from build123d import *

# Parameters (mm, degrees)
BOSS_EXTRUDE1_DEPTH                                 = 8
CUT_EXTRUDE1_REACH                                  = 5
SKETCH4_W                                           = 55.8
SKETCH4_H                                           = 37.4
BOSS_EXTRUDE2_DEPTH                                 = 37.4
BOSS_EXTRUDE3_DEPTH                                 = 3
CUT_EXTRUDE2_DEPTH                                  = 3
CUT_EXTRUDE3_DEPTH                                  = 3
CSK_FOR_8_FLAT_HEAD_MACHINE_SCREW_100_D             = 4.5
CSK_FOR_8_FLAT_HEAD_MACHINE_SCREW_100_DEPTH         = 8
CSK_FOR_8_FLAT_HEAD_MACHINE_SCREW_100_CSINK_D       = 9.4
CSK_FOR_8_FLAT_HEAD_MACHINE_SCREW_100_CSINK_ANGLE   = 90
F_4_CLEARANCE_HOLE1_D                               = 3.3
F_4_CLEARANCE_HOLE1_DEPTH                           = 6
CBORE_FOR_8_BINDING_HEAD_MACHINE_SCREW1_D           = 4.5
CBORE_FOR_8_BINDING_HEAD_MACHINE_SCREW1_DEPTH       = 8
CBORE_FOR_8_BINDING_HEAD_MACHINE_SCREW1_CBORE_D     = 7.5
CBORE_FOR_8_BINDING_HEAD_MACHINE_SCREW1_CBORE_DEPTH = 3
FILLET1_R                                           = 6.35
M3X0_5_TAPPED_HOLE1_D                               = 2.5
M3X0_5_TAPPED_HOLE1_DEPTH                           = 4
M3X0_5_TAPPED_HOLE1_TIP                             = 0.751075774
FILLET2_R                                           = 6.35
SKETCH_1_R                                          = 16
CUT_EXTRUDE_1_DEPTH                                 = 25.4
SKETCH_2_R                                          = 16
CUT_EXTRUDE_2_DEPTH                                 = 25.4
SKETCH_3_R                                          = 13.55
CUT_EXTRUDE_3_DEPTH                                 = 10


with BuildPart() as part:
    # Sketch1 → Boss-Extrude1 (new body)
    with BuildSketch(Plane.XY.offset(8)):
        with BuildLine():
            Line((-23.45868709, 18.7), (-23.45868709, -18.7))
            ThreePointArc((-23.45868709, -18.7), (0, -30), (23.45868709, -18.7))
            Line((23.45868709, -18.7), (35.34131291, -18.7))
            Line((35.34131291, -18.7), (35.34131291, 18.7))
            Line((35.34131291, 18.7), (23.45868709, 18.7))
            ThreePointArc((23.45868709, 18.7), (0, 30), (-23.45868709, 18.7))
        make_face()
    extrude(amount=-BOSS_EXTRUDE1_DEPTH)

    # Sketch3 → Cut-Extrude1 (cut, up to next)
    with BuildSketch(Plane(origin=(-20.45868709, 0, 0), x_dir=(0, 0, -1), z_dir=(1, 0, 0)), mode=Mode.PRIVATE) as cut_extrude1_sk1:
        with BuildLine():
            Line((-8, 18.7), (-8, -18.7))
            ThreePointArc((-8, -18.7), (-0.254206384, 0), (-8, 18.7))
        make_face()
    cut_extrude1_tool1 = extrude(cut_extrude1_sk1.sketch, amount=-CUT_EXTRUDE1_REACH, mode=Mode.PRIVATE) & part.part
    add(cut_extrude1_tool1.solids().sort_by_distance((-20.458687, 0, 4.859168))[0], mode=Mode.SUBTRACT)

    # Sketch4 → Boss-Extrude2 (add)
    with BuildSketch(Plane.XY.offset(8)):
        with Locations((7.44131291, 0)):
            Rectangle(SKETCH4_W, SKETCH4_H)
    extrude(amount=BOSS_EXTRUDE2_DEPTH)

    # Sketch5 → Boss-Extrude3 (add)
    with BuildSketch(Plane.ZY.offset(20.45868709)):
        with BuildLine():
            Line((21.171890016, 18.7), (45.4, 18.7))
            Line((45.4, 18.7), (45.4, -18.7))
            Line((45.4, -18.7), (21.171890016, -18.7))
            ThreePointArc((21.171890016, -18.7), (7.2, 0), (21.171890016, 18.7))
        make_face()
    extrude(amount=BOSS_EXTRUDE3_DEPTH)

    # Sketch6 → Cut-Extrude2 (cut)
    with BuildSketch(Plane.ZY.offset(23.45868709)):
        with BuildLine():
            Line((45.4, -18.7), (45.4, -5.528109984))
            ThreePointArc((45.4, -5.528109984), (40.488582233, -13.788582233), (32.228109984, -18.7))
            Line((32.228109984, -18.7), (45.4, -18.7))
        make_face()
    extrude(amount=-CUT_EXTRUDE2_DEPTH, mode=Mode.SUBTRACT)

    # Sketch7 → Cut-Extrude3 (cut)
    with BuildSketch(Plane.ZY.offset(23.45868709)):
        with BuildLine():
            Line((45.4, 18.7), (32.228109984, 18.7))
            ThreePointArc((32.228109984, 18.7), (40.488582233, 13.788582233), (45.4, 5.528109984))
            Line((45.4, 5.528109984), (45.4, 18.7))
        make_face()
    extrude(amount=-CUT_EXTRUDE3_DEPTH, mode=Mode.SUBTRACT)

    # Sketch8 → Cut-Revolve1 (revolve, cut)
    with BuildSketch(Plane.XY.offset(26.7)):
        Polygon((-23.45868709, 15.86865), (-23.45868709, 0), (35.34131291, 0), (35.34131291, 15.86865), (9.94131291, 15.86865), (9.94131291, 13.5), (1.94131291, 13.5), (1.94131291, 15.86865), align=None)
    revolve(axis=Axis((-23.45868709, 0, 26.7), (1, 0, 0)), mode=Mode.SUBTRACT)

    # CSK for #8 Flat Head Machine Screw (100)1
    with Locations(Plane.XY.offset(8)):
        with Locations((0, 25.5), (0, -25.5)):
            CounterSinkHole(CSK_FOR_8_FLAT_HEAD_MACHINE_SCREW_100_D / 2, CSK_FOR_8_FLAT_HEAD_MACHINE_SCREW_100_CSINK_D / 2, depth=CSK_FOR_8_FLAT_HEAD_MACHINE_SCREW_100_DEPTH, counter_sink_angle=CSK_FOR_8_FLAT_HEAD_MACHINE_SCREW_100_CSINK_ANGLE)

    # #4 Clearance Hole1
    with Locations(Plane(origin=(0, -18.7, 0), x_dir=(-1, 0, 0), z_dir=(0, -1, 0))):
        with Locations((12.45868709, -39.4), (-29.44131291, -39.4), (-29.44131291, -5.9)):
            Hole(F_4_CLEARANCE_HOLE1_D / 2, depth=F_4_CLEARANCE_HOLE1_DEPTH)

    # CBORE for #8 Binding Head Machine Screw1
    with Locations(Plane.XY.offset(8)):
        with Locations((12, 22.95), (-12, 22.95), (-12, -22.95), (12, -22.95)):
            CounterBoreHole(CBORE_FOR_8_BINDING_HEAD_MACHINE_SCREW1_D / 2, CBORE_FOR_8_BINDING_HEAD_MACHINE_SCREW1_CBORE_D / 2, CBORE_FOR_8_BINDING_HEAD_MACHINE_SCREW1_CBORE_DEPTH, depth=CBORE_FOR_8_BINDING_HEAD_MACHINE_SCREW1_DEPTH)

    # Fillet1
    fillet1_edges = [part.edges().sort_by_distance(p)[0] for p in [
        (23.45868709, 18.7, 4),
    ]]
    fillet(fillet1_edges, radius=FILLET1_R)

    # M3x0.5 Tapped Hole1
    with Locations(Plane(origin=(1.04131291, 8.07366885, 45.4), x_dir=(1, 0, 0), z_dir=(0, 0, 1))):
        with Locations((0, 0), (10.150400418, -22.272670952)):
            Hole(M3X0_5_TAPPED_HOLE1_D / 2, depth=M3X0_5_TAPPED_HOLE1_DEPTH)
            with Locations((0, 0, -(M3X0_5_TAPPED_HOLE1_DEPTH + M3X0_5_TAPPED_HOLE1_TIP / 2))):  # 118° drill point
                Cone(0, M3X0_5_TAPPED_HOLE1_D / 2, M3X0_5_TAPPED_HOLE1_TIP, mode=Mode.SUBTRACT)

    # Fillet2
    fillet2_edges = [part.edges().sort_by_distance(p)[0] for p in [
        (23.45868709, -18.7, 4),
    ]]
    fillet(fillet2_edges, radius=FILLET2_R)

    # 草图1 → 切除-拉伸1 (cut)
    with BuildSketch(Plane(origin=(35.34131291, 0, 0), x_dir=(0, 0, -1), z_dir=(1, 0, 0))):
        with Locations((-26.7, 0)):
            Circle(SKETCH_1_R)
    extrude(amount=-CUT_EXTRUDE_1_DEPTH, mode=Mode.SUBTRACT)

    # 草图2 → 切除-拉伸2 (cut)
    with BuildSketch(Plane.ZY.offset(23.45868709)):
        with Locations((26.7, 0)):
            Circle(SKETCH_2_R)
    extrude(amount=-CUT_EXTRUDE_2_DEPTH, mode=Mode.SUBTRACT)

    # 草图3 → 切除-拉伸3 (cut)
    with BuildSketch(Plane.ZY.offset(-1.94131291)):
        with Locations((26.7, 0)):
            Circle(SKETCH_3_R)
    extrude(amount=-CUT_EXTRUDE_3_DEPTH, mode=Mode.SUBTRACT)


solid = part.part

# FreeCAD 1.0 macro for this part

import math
import FreeCAD as App
import Part
import Sketcher
Q = App.Units.Quantity


def edges_at(feature, points):
    """Names of the edges that pass closest to the given points."""
    edges = feature.Shape.Edges
    near = lambda p: min(range(len(edges)), key=lambda i: edges[i].distToShape(Part.Vertex(*p))[0])
    return sorted({f"Edge{near(p) + 1}" for p in points})

doc = App.newDocument("Part")
body = doc.addObject("PartDesign::Body", "Body")

# Sketch on XY plane
sketch1 = body.newObject("Sketcher::SketchObject", "Sketch")
sketch1.AttachmentSupport = (doc.getObject("XY_Plane"), [""])
sketch1.MapMode = "FlatFace"
sketch1.AttachmentOffset = App.Placement(App.Vector(0, 0, 8), App.Rotation())
sketch1.addGeometry([
    Part.LineSegment(App.Vector(-23, 19, 0), App.Vector(-23, -19, 0)),  # 0
    Part.ArcOfCircle(Part.Circle(App.Vector(0, 0, 0), App.Vector(0, 0, 1), 30), math.radians(-141), math.radians(-39)),  # 1
    Part.LineSegment(App.Vector(23, -19, 0), App.Vector(35, -19, 0)),  # 2
    Part.LineSegment(App.Vector(35, -19, 0), App.Vector(35, 19, 0)),  # 3
    Part.LineSegment(App.Vector(35, 19, 0), App.Vector(23, 19, 0)),  # 4
    Part.ArcOfCircle(Part.Circle(App.Vector(0, 0, 0), App.Vector(0, 0, 1), 30), math.radians(39), math.radians(141)),  # 5
], False)
sketch1.addConstraint([
    Sketcher.Constraint("Coincident", 0, 2, 1, 1),
    Sketcher.Constraint("Coincident", 1, 2, 2, 1),
    Sketcher.Constraint("Coincident", 2, 2, 3, 1),
    Sketcher.Constraint("Coincident", 3, 2, 4, 1),
    Sketcher.Constraint("Coincident", 4, 2, 5, 1),
    Sketcher.Constraint("Coincident", 5, 2, 0, 1),
    Sketcher.Constraint("Vertical", 0),
    Sketcher.Constraint("Horizontal", 2),
    Sketcher.Constraint("Vertical", 3),
    Sketcher.Constraint("Horizontal", 4),
    Sketcher.Constraint("Coincident", 1, 3, -1, 1),
    Sketcher.Constraint("Coincident", 5, 3, -1, 1),
    Sketcher.Constraint("Equal", 1, 5),
    Sketcher.Constraint("Horizontal", 0, 2, 1, 2),
    Sketcher.Constraint("Horizontal", 4, 2, 5, 2),
    Sketcher.Constraint("Radius", 1, Q("30 mm")),
    Sketcher.Constraint("DistanceY", 0, 2, 0, 1, Q("37.4 mm")),
    Sketcher.Constraint("DistanceX", 0, 2, 2, 2, Q("58.8 mm")),
])
pad1 = body.newObject("PartDesign::Pad", "Pad")
pad1.Profile = sketch1
pad1.Length = 8
pad1.Reversed = True

# Sketch on YZ plane
sketch2 = body.newObject("Sketcher::SketchObject", "Sketch001")
sketch2.AttachmentSupport = (doc.getObject("YZ_Plane"), [""])
sketch2.MapMode = "FlatFace"
sketch2.AttachmentOffset = App.Placement(App.Vector(0, 0, -20.458687), App.Rotation())
sketch2.addGeometry([
    Part.LineSegment(App.Vector(19, 8, 0), App.Vector(-19, 8, 0)),
    Part.ArcOfCircle(Part.Circle(App.Vector(0, 27, 0), App.Vector(0, 0, 1), 26), math.radians(-135), math.radians(-45)),
], False)
sketch2.addConstraint([
    Sketcher.Constraint("Coincident", 0, 1, 1, 2),
    Sketcher.Constraint("Coincident", 1, 1, 0, 2),
    Sketcher.Constraint("Horizontal", 0),
    Sketcher.Constraint("PointOnObject", 1, 3, -2),
    Sketcher.Constraint("DistanceX", 0, 2, 0, 1, Q("37.4 mm")),
    Sketcher.Constraint("DistanceY", -1, 1, 0, 1, Q("8 mm")),
    Sketcher.Constraint("DistanceY", -1, 1, 1, 3, Q("26.7 mm")),
])
pocket1 = body.newObject("PartDesign::Pocket", "Pocket")
pocket1.Profile = sketch2
pocket1.Type = "UpToFirst"

# Sketch on XY plane
sketch3 = body.newObject("Sketcher::SketchObject", "Sketch002")
sketch3.AttachmentSupport = (doc.getObject("XY_Plane"), [""])
sketch3.MapMode = "FlatFace"
sketch3.AttachmentOffset = App.Placement(App.Vector(0, 0, 8), App.Rotation())
sketch3.addGeometry([
    Part.LineSegment(App.Vector(-20, 19, 0), App.Vector(-20, -19, 0)),
    Part.LineSegment(App.Vector(-20, -19, 0), App.Vector(35, -19, 0)),
    Part.LineSegment(App.Vector(35, -19, 0), App.Vector(35, 19, 0)),
    Part.LineSegment(App.Vector(35, 19, 0), App.Vector(-20, 19, 0)),
], False)
sketch3.addConstraint([
    Sketcher.Constraint("Coincident", 0, 2, 1, 1),
    Sketcher.Constraint("Coincident", 1, 2, 2, 1),
    Sketcher.Constraint("Coincident", 2, 2, 3, 1),
    Sketcher.Constraint("Coincident", 3, 2, 0, 1),
    Sketcher.Constraint("Vertical", 0),
    Sketcher.Constraint("Horizontal", 1),
    Sketcher.Constraint("Vertical", 2),
    Sketcher.Constraint("Horizontal", 3),
    Sketcher.Constraint("DistanceX", 1, 1, 1, 2, Q("55.8 mm")),
    Sketcher.Constraint("DistanceY", 0, 2, 0, 1, Q("37.4 mm")),
    Sketcher.Constraint("DistanceY", 0, 2, -1, 1, Q("18.7 mm")),
    Sketcher.Constraint("DistanceX", 0, 2, -1, 1, Q("20.458687 mm")),
])
pad2 = body.newObject("PartDesign::Pad", "Pad001")
pad2.Profile = sketch3
pad2.Length = 37.4

# Sketch on YZ plane
sketch4 = body.newObject("Sketcher::SketchObject", "Sketch003")
sketch4.AttachmentSupport = (doc.getObject("YZ_Plane"), [""])
sketch4.MapMode = "FlatFace"
sketch4.AttachmentOffset = App.Placement(App.Vector(0, 0, -20.458687), App.Rotation())
sketch4.addGeometry([
    Part.LineSegment(App.Vector(19, 45, 0), App.Vector(19, 21, 0)),
    Part.ArcOfCircle(Part.Circle(App.Vector(0, 27, 0), App.Vector(0, 0, 1), 20), math.radians(-164), math.radians(-16)),
    Part.LineSegment(App.Vector(-19, 21, 0), App.Vector(-19, 45, 0)),
    Part.LineSegment(App.Vector(-19, 45, 0), App.Vector(19, 45, 0)),
], False)
sketch4.addConstraint([
    Sketcher.Constraint("Coincident", 0, 2, 1, 2),
    Sketcher.Constraint("Coincident", 1, 1, 2, 1),
    Sketcher.Constraint("Coincident", 2, 2, 3, 1),
    Sketcher.Constraint("Coincident", 3, 2, 0, 1),
    Sketcher.Constraint("Vertical", 0),
    Sketcher.Constraint("Vertical", 2),
    Sketcher.Constraint("Horizontal", 3),
    Sketcher.Constraint("Symmetric", 0, 2, 1, 1, -2),
    Sketcher.Constraint("Radius", 1, Q("19.5 mm")),
    Sketcher.Constraint("DistanceX", 3, 1, 3, 2, Q("37.4 mm")),
    Sketcher.Constraint("DistanceY", -1, 1, 1, 3, Q("26.7 mm")),
    Sketcher.Constraint("DistanceY", -1, 1, 2, 2, Q("45.4 mm")),
])
pad3 = body.newObject("PartDesign::Pad", "Pad002")
pad3.Profile = sketch4
pad3.Length = 3
pad3.Reversed = True

# Sketch on YZ plane
sketch5 = body.newObject("Sketcher::SketchObject", "Sketch004")
sketch5.AttachmentSupport = (doc.getObject("YZ_Plane"), [""])
sketch5.MapMode = "FlatFace"
sketch5.AttachmentOffset = App.Placement(App.Vector(0, 0, -23.458687), App.Rotation())
sketch5.addGeometry([
    Part.LineSegment(App.Vector(-19, 45, 0), App.Vector(-6, 45, 0)),
    Part.ArcOfCircle(Part.Circle(App.Vector(0, 27, 0), App.Vector(0, 0, 1), 20), math.radians(106), math.radians(164)),
    Part.LineSegment(App.Vector(-19, 32, 0), App.Vector(-19, 45, 0)),
], False)
sketch5.addConstraint([
    Sketcher.Constraint("Coincident", 0, 2, 1, 1),
    Sketcher.Constraint("Coincident", 1, 2, 2, 1),
    Sketcher.Constraint("Coincident", 2, 2, 0, 1),
    Sketcher.Constraint("Horizontal", 0),
    Sketcher.Constraint("Vertical", 2),
    Sketcher.Constraint("PointOnObject", 1, 3, -2),
    Sketcher.Constraint("Equal", 0, 2),
    Sketcher.Constraint("Radius", 1, Q("19.5 mm")),
    Sketcher.Constraint("DistanceY", -1, 1, 1, 3, Q("26.7 mm")),
    Sketcher.Constraint("DistanceY", -1, 1, 0, 2, Q("45.4 mm")),
])
pocket2 = body.newObject("PartDesign::Pocket", "Pocket001")
pocket2.Profile = sketch5
pocket2.Length = 3
pocket2.Reversed = True

# Sketch on YZ plane
sketch6 = body.newObject("Sketcher::SketchObject", "Sketch005")
sketch6.AttachmentSupport = (doc.getObject("YZ_Plane"), [""])
sketch6.MapMode = "FlatFace"
sketch6.AttachmentOffset = App.Placement(App.Vector(0, 0, -23.458687), App.Rotation())
sketch6.addGeometry([
    Part.LineSegment(App.Vector(19, 45, 0), App.Vector(19, 32, 0)),
    Part.ArcOfCircle(Part.Circle(App.Vector(0, 27, 0), App.Vector(0, 0, 1), 20), math.radians(16), math.radians(74)),
    Part.LineSegment(App.Vector(6, 45, 0), App.Vector(19, 45, 0)),
], False)
sketch6.addConstraint([
    Sketcher.Constraint("Coincident", 0, 2, 1, 1),
    Sketcher.Constraint("Coincident", 1, 2, 2, 1),
    Sketcher.Constraint("Coincident", 2, 2, 0, 1),
    Sketcher.Constraint("Vertical", 0),
    Sketcher.Constraint("Horizontal", 2),
    Sketcher.Constraint("PointOnObject", 1, 3, -2),
    Sketcher.Constraint("Equal", 2, 0),
    Sketcher.Constraint("Radius", 1, Q("19.5 mm")),
    Sketcher.Constraint("DistanceY", -1, 1, 1, 3, Q("26.7 mm")),
    Sketcher.Constraint("DistanceX", -1, 1, 0, 2, Q("18.7 mm")),
])
pocket3 = body.newObject("PartDesign::Pocket", "Pocket002")
pocket3.Profile = sketch6
pocket3.Length = 3
pocket3.Reversed = True

# Sketch on XY plane
sketch7 = body.newObject("Sketcher::SketchObject", "Sketch006")
sketch7.AttachmentSupport = (doc.getObject("XY_Plane"), [""])
sketch7.MapMode = "FlatFace"
sketch7.AttachmentOffset = App.Placement(App.Vector(0, 0, 26.7), App.Rotation())
sketch7.addGeometry([
    Part.LineSegment(App.Vector(-23.5, 15.9, 0), App.Vector(-23.5, 0, 0)),  # 0
    Part.LineSegment(App.Vector(-23.5, 0, 0), App.Vector(35.3, 0, 0)),  # 1
    Part.LineSegment(App.Vector(35.3, 0, 0), App.Vector(35.3, 15.9, 0)),  # 2
    Part.LineSegment(App.Vector(35.3, 15.9, 0), App.Vector(9.9, 15.9, 0)),  # 3
    Part.LineSegment(App.Vector(9.9, 15.9, 0), App.Vector(9.9, 13.5, 0)),  # 4
    Part.LineSegment(App.Vector(9.9, 13.5, 0), App.Vector(1.9, 13.5, 0)),  # 5
    Part.LineSegment(App.Vector(1.9, 13.5, 0), App.Vector(1.9, 15.9, 0)),  # 6
    Part.LineSegment(App.Vector(1.9, 15.9, 0), App.Vector(-23.5, 15.9, 0)),  # 7
], False)
sketch7.addConstraint([
    Sketcher.Constraint("Coincident", 0, 2, 1, 1),
    Sketcher.Constraint("Coincident", 1, 2, 2, 1),
    Sketcher.Constraint("Coincident", 2, 2, 3, 1),
    Sketcher.Constraint("Coincident", 3, 2, 4, 1),
    Sketcher.Constraint("Coincident", 4, 2, 5, 1),
    Sketcher.Constraint("Coincident", 5, 2, 6, 1),
    Sketcher.Constraint("Coincident", 6, 2, 7, 1),
    Sketcher.Constraint("Coincident", 7, 2, 0, 1),
    Sketcher.Constraint("Vertical", 0),
    Sketcher.Constraint("Horizontal", 1),
    Sketcher.Constraint("Vertical", 2),
    Sketcher.Constraint("Horizontal", 3),
    Sketcher.Constraint("Vertical", 4),
    Sketcher.Constraint("Horizontal", 5),
    Sketcher.Constraint("Vertical", 6),
    Sketcher.Constraint("Horizontal", 7),
    Sketcher.Constraint("PointOnObject", 0, 2, -1),
    Sketcher.Constraint("Horizontal", 3, 2, 6, 2),
    Sketcher.Constraint("Equal", 3, 7),
    Sketcher.Constraint("DistanceX", 5, 2, 5, 1, Q("8 mm")),
    Sketcher.Constraint("DistanceX", 1, 1, 1, 2, Q("58.8 mm")),
    Sketcher.Constraint("DistanceY", -1, 1, 4, 2, Q("13.5 mm")),
    Sketcher.Constraint("DistanceY", 0, 2, 0, 1, Q("15.86865 mm")),
    Sketcher.Constraint("DistanceX", 0, 2, -1, 1, Q("23.458687 mm")),
])
groove = body.newObject("PartDesign::Groove", "Groove")
groove.Profile = sketch7
groove.ReferenceAxis = (sketch7, ["H_Axis"])
groove.Angle = 360

# Sketch on XY plane
sketch8 = body.newObject("Sketcher::SketchObject", "Sketch007")
sketch8.AttachmentSupport = (doc.getObject("XY_Plane"), [""])
sketch8.MapMode = "FlatFace"
sketch8.AttachmentOffset = App.Placement(App.Vector(0, 0, 8), App.Rotation())
sketch8.addGeometry([
    Part.Circle(App.Vector(0, 25.5, 0), App.Vector(0, 0, 1), 2.2),
    Part.Circle(App.Vector(0, -25.5, 0), App.Vector(0, 0, 1), 2.2),
], False)
sketch8.addConstraint([
    Sketcher.Constraint("Equal", 0, 1),
    Sketcher.Constraint("Symmetric", 0, 3, 1, 3, -1, 1),
    Sketcher.Constraint("PointOnObject", 0, 3, -2),
    Sketcher.Constraint("Diameter", 0, Q("4.5 mm")),
    Sketcher.Constraint("DistanceY", 1, 3, 0, 3, Q("51 mm")),
])
doc.recompute()
hole = body.newObject("PartDesign::Hole", "Hole")
hole.Profile = sketch8
hole.ThreadType = "None"
hole.Diameter = 4.5
hole.DepthType = "Dimension"
hole.Depth = 8
hole.DrillPoint = "Flat"
hole.HoleCutType = "Countersink"
hole.HoleCutDiameter = 9.4
hole.HoleCutCountersinkAngle = 90

# Sketch on XZ plane
sketch9 = body.newObject("Sketcher::SketchObject", "Sketch008")
sketch9.AttachmentSupport = (doc.getObject("XZ_Plane"), [""])
sketch9.MapMode = "FlatFace"
sketch9.AttachmentOffset = App.Placement(App.Vector(0, 0, 18.7), App.Rotation())
sketch9.addGeometry([
    Part.Circle(App.Vector(-12.5, 39.4, 0), App.Vector(0, 0, 1), 1.6),
    Part.Circle(App.Vector(29.4, 39.4, 0), App.Vector(0, 0, 1), 1.6),
    Part.Circle(App.Vector(29.4, 5.9, 0), App.Vector(0, 0, 1), 1.6),
], False)
sketch9.addConstraint([
    Sketcher.Constraint("Equal", 0, 1),
    Sketcher.Constraint("Equal", 1, 2),
    Sketcher.Constraint("Horizontal", 0, 3, 1, 3),
    Sketcher.Constraint("Vertical", 1, 3, 2, 3),
    Sketcher.Constraint("Diameter", 0, Q("3.3 mm")),
    Sketcher.Constraint("DistanceY", -1, 1, 0, 3, Q("39.4 mm")),
    Sketcher.Constraint("DistanceY", -1, 1, 2, 3, Q("5.9 mm")),
    Sketcher.Constraint("DistanceX", 0, 3, 1, 3, Q("41.9 mm")),
    Sketcher.Constraint("DistanceX", 0, 3, -1, 1, Q("12.458687 mm")),
])
doc.recompute()
hole2 = body.newObject("PartDesign::Hole", "Hole001")
hole2.Profile = sketch9
hole2.ThreadType = "None"
hole2.Diameter = 3.3
hole2.DepthType = "Dimension"
hole2.Depth = 6
hole2.DrillPoint = "Flat"

# Sketch on XY plane
sketch10 = body.newObject("Sketcher::SketchObject", "Sketch009")
sketch10.AttachmentSupport = (doc.getObject("XY_Plane"), [""])
sketch10.MapMode = "FlatFace"
sketch10.AttachmentOffset = App.Placement(App.Vector(0, 0, 8), App.Rotation())
sketch10.addGeometry([
    Part.Circle(App.Vector(12, 22.9, 0), App.Vector(0, 0, 1), 2.2),
    Part.Circle(App.Vector(-12, 22.9, 0), App.Vector(0, 0, 1), 2.2),
    Part.Circle(App.Vector(-12, -22.9, 0), App.Vector(0, 0, 1), 2.2),
    Part.Circle(App.Vector(12, -22.9, 0), App.Vector(0, 0, 1), 2.2),
], False)
sketch10.addConstraint([
    Sketcher.Constraint("Equal", 0, 1),
    Sketcher.Constraint("Equal", 1, 2),
    Sketcher.Constraint("Equal", 2, 3),
    Sketcher.Constraint("Symmetric", 0, 3, 2, 3, -1, 1),
    Sketcher.Constraint("Symmetric", 1, 3, 3, 3, -1, 1),
    Sketcher.Constraint("Symmetric", 0, 3, 1, 3, -2),
    Sketcher.Constraint("Diameter", 0, Q("4.5 mm")),
    Sketcher.Constraint("DistanceX", -1, 1, 0, 3, Q("12 mm")),
    Sketcher.Constraint("DistanceY", 2, 3, 1, 3, Q("45.9 mm")),
])
doc.recompute()
hole3 = body.newObject("PartDesign::Hole", "Hole002")
hole3.Profile = sketch10
hole3.ThreadType = "None"
hole3.Diameter = 4.5
hole3.DepthType = "Dimension"
hole3.Depth = 8
hole3.DrillPoint = "Flat"
hole3.HoleCutType = "Counterbore"
hole3.HoleCutDiameter = 7.5
hole3.HoleCutDepth = 3
doc.recompute()

fillet = body.newObject("PartDesign::Fillet", "Fillet")
fillet.Base = (hole3, edges_at(hole3, [(23.459, 18.7, 4)]))
fillet.Radius = 6.35

# Sketch on XY plane
sketch11 = body.newObject("Sketcher::SketchObject", "Sketch010")
sketch11.AttachmentSupport = (doc.getObject("XY_Plane"), [""])
sketch11.MapMode = "FlatFace"
sketch11.AttachmentOffset = App.Placement(App.Vector(0, 0, 45.4), App.Rotation())
sketch11.addGeometry([
    Part.Circle(App.Vector(1, 8.1, 0), App.Vector(0, 0, 1), 1.2),
    Part.Circle(App.Vector(11.2, -14.2, 0), App.Vector(0, 0, 1), 1.2),
], False)
sketch11.addConstraint([
    Sketcher.Constraint("Equal", 0, 1),
    Sketcher.Constraint("Diameter", 0, Q("2.5 mm")),
    Sketcher.Constraint("DistanceX", 0, 3, 1, 3, Q("10.1504 mm")),
    Sketcher.Constraint("DistanceY", -1, 1, 0, 3, Q("8.073669 mm")),
    Sketcher.Constraint("DistanceY", 1, 3, 0, 3, Q("22.272671 mm")),
    Sketcher.Constraint("DistanceX", -1, 1, 0, 3, Q("1.041313 mm")),
])
doc.recompute()
hole4 = body.newObject("PartDesign::Hole", "Hole003")
hole4.Profile = sketch11
hole4.ThreadType = "None"
hole4.Diameter = 2.5
hole4.DepthType = "Dimension"
hole4.Depth = 4
hole4.DrillPoint = "Angled"
hole4.DrillPointAngle = 118
doc.recompute()

fillet2 = body.newObject("PartDesign::Fillet", "Fillet001")
fillet2.Base = (hole4, edges_at(hole4, [(23.459, -18.7, 4)]))
fillet2.Radius = 6.35

# Sketch on YZ plane
sketch12 = body.newObject("Sketcher::SketchObject", "Sketch011")
sketch12.AttachmentSupport = (doc.getObject("YZ_Plane"), [""])
sketch12.MapMode = "FlatFace"
sketch12.AttachmentOffset = App.Placement(App.Vector(0, 0, 35.341313), App.Rotation())
sketch12.addGeometry(Part.Circle(App.Vector(0, 27, 0), App.Vector(0, 0, 1), 16), False)
sketch12.addConstraint([
    Sketcher.Constraint("PointOnObject", 0, 3, -2),
    Sketcher.Constraint("Diameter", 0, Q("32 mm")),
    Sketcher.Constraint("DistanceY", -1, 1, 0, 3, Q("26.7 mm")),
])
pocket4 = body.newObject("PartDesign::Pocket", "Pocket003")
pocket4.Profile = sketch12
pocket4.Length = 25.4

# Sketch on YZ plane
sketch13 = body.newObject("Sketcher::SketchObject", "Sketch012")
sketch13.AttachmentSupport = (doc.getObject("YZ_Plane"), [""])
sketch13.MapMode = "FlatFace"
sketch13.AttachmentOffset = App.Placement(App.Vector(0, 0, -23.458687), App.Rotation())
sketch13.addGeometry(Part.Circle(App.Vector(0, 27, 0), App.Vector(0, 0, 1), 16), False)
sketch13.addConstraint([
    Sketcher.Constraint("PointOnObject", 0, 3, -2),
    Sketcher.Constraint("Diameter", 0, Q("32 mm")),
    Sketcher.Constraint("DistanceY", -1, 1, 0, 3, Q("26.7 mm")),
])
pocket5 = body.newObject("PartDesign::Pocket", "Pocket004")
pocket5.Profile = sketch13
pocket5.Length = 25.4
pocket5.Reversed = True

# Sketch on YZ plane
sketch14 = body.newObject("Sketcher::SketchObject", "Sketch013")
sketch14.AttachmentSupport = (doc.getObject("YZ_Plane"), [""])
sketch14.MapMode = "FlatFace"
sketch14.AttachmentOffset = App.Placement(App.Vector(0, 0, 1.941313), App.Rotation())
sketch14.addGeometry(Part.Circle(App.Vector(0, 27, 0), App.Vector(0, 0, 1), 14), False)
sketch14.addConstraint([
    Sketcher.Constraint("PointOnObject", 0, 3, -2),
    Sketcher.Constraint("Diameter", 0, Q("27.1 mm")),
    Sketcher.Constraint("DistanceY", -1, 1, 0, 3, Q("26.7 mm")),
])
pocket6 = body.newObject("PartDesign::Pocket", "Pocket005")
pocket6.Profile = sketch14
pocket6.Length = 10
pocket6.Reversed = True

doc.recompute()
